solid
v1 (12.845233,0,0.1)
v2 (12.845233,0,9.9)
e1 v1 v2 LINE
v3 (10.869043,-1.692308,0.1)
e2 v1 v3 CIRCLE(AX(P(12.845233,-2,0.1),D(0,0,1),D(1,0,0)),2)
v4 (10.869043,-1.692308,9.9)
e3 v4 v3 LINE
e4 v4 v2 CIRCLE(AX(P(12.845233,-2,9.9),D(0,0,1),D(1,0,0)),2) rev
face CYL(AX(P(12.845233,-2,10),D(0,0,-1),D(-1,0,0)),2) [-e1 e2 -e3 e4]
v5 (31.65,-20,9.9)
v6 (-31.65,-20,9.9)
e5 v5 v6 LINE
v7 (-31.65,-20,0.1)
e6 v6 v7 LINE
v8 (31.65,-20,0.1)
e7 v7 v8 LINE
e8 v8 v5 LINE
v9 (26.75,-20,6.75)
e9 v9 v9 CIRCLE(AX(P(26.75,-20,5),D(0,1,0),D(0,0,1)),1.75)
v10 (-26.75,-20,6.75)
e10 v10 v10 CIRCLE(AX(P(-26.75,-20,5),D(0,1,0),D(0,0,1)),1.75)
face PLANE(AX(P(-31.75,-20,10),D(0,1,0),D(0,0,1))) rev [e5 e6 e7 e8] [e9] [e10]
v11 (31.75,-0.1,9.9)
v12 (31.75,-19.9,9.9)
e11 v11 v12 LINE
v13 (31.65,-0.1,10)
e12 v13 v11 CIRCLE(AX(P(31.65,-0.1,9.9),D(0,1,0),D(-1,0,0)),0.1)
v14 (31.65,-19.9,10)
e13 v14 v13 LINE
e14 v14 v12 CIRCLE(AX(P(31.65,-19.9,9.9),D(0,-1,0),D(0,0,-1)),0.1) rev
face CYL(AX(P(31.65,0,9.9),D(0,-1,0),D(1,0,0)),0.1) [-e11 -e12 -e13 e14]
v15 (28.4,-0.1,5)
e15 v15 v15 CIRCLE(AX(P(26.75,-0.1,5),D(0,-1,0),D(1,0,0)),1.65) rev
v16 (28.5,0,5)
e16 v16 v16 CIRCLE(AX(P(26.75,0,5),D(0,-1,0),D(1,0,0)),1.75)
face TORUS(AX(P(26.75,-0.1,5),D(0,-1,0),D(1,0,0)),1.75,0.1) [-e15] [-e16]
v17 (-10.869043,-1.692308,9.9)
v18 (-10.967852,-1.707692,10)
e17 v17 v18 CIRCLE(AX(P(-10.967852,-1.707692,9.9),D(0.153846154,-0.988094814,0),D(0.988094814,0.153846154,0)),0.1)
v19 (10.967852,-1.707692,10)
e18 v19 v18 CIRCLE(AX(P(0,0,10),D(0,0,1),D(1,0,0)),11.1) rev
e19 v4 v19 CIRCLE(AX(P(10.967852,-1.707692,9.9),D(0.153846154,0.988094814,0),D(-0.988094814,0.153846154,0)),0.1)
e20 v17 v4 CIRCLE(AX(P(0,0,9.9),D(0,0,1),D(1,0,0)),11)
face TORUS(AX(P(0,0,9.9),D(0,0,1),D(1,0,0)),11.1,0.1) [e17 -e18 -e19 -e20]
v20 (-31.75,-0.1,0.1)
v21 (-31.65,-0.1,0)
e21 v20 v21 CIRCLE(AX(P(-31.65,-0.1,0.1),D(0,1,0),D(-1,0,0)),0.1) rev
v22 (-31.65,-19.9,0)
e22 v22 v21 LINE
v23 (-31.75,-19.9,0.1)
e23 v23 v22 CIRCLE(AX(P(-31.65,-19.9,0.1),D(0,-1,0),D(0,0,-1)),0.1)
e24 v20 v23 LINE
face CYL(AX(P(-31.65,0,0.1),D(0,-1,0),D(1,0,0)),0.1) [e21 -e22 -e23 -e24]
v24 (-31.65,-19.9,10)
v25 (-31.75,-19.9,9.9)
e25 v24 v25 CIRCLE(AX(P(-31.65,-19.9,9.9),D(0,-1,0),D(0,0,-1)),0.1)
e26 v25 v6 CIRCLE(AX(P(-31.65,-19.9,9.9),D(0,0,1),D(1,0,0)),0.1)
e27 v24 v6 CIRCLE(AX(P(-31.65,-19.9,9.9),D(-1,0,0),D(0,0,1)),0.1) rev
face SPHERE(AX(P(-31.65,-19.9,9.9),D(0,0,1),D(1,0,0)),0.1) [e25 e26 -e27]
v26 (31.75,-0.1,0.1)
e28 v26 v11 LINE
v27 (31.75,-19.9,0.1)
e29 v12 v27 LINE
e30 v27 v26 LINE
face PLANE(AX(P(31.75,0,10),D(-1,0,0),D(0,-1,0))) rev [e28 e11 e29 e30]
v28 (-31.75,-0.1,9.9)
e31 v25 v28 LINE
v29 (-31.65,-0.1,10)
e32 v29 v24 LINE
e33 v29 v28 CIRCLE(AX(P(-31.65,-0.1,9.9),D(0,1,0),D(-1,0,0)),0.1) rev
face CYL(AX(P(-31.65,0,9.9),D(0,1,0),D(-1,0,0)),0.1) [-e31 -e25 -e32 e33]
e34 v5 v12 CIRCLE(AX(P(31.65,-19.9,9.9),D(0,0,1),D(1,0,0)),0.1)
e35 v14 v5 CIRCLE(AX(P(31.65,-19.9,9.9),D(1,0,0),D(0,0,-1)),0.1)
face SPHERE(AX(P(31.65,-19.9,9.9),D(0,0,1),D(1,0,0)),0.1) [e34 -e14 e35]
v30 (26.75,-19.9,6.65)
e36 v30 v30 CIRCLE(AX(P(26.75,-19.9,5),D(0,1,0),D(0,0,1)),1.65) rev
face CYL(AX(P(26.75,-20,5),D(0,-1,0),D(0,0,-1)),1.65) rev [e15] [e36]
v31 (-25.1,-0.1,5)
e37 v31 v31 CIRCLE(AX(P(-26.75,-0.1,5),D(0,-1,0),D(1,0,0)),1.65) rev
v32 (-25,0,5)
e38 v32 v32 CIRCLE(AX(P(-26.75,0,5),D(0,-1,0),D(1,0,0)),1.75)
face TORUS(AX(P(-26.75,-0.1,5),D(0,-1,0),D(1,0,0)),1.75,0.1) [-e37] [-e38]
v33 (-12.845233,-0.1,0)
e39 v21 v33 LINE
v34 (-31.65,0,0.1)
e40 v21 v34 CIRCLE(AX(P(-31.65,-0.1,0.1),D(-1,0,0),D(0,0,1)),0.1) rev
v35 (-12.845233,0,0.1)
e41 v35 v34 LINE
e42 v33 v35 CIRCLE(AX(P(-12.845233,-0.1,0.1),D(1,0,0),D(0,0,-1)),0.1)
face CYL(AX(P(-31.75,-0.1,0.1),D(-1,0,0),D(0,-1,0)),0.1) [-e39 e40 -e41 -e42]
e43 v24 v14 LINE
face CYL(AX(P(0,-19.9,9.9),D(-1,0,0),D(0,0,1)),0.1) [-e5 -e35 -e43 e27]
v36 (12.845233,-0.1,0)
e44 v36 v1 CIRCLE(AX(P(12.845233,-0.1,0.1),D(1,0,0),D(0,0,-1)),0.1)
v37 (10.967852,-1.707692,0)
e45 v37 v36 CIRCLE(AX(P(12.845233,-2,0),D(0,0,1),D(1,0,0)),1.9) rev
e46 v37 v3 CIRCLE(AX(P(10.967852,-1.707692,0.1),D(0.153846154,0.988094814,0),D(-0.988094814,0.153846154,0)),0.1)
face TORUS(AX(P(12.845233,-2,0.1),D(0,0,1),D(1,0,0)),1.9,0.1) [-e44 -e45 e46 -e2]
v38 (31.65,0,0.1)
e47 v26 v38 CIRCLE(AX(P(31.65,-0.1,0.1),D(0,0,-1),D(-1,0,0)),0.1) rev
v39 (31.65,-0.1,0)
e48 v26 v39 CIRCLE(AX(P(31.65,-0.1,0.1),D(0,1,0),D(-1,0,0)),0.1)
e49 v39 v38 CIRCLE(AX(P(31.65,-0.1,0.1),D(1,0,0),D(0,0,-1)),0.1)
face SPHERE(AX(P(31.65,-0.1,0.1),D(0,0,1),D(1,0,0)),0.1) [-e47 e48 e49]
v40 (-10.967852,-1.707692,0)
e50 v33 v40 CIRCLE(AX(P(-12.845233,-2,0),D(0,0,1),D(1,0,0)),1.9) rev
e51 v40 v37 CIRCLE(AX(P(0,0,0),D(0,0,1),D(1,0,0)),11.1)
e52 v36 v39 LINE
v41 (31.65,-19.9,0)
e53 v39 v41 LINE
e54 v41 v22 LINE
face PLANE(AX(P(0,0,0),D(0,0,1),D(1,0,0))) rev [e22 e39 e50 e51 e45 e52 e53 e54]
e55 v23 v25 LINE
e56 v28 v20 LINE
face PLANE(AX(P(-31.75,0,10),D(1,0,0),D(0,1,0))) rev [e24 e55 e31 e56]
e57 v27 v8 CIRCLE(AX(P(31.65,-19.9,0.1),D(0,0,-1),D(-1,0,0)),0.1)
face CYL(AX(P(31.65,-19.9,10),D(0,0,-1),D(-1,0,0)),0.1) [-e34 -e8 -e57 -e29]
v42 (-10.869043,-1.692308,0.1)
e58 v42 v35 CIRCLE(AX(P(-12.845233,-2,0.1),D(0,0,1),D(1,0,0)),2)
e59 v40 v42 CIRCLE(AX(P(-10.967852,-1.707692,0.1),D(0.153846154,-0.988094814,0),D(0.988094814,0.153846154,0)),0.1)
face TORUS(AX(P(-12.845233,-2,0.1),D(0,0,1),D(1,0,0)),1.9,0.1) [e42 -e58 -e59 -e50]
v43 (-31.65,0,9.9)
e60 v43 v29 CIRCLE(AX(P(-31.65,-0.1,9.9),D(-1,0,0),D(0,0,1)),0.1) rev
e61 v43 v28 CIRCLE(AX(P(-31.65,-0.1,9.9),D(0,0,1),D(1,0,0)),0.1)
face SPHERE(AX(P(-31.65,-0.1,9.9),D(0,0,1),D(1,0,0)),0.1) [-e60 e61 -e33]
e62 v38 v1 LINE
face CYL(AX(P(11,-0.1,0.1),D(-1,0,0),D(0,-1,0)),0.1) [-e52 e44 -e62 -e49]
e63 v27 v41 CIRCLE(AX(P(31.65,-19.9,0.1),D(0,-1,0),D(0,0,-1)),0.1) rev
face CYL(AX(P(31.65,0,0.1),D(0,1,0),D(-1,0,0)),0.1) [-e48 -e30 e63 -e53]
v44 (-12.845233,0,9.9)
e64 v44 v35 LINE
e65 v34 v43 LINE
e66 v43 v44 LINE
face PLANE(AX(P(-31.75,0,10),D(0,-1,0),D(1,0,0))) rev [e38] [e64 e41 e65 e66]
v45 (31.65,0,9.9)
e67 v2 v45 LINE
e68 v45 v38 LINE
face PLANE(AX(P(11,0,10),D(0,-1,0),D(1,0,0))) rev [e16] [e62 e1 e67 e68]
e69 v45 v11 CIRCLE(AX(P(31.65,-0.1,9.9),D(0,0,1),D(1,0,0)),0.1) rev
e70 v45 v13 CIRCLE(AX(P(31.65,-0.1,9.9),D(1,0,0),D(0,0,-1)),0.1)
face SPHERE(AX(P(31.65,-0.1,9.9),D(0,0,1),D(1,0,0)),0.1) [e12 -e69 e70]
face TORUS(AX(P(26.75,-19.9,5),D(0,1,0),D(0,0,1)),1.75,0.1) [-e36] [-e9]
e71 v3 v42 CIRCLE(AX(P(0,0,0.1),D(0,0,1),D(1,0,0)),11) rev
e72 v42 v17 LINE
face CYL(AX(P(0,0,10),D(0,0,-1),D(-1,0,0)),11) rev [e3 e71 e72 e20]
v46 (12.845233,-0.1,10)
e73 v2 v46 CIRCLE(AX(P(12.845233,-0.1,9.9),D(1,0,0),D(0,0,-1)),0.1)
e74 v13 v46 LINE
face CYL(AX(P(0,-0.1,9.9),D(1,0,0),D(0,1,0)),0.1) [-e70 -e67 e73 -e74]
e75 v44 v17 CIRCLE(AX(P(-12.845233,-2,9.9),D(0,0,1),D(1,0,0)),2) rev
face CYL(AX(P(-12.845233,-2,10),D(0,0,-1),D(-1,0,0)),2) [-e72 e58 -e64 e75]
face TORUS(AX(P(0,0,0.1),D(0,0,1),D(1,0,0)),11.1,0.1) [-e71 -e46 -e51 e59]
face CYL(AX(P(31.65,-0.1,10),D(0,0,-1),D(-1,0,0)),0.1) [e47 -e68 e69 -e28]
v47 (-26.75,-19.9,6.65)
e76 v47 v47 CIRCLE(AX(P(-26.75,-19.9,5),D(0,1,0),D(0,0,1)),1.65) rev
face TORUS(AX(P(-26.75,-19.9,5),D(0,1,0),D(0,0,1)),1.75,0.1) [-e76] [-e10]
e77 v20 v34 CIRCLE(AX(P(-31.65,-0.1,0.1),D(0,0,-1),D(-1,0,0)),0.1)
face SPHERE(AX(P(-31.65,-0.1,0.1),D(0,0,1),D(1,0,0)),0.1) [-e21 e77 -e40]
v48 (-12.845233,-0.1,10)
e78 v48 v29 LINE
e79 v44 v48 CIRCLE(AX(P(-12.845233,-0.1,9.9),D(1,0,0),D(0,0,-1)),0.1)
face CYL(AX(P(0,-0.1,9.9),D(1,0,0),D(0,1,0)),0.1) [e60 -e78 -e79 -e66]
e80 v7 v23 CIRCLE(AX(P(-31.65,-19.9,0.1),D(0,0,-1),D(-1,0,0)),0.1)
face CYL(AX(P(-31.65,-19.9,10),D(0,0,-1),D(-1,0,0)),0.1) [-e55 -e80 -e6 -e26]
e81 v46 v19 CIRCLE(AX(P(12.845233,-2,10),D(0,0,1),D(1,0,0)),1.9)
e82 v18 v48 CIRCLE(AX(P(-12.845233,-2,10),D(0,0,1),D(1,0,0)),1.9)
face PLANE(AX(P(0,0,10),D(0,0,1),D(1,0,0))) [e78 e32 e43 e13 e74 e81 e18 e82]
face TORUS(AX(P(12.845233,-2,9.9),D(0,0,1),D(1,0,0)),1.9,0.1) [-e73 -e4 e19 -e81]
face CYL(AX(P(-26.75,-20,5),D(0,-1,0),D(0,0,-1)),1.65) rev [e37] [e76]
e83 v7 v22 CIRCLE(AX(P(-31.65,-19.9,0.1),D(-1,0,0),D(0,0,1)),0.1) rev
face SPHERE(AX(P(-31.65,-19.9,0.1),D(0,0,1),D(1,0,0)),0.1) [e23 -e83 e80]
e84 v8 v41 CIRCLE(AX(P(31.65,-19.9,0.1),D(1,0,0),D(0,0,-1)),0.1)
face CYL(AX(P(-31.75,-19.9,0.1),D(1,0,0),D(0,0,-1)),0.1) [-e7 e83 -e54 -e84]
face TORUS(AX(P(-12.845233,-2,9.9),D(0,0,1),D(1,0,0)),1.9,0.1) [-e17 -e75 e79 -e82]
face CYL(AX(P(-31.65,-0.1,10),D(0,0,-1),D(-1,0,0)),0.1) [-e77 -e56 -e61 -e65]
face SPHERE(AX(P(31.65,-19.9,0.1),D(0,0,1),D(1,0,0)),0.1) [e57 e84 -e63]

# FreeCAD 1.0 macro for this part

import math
import FreeCAD as App
import Part
import Sketcher

V = App.Vector


def edges_at(feature, points):
    """Names of the edges that pass closest to the given points."""
    edges = feature.Shape.Edges
    near = lambda p: min(range(len(edges)), key=lambda i: edges[i].distToShape(Part.Vertex(*p))[0])
    return sorted({f"Edge{near(p) + 1}" for p in points})

doc = App.newDocument("Part")
body = doc.addObject("PartDesign::Body", "Body")

sketch1 = body.newObject("Sketcher::SketchObject", "Sketch")
sketch1.AttachmentSupport = (doc.getObject("XY_Plane"), [""])
sketch1.MapMode = "FlatFace"
sketch1.addGeometry([
    Part.LineSegment(V(32, 0, 0), V(11, 0, 0)),
    Part.ArcOfCircle(Part.Circle(V(0, 0, 0), V(0, 0, 1), 11), math.radians(180), math.radians(360)),
    Part.LineSegment(V(-11, 0, 0), V(-32, 0, 0)),
    Part.LineSegment(V(-32, 0, 0), V(-32, -20, 0)),
    Part.LineSegment(V(-32, -20, 0), V(32, -20, 0)),
    Part.LineSegment(V(32, -20, 0), V(32, 0, 0)),
], False)
sketch1.addConstraint([
    Sketcher.Constraint("Coincident", 0, 2, 1, 2),
    Sketcher.Constraint("Coincident", 1, 1, 2, 1),
    Sketcher.Constraint("Coincident", 2, 2, 3, 1),
    Sketcher.Constraint("Coincident", 3, 2, 4, 1),
    Sketcher.Constraint("Coincident", 4, 2, 5, 1),
    Sketcher.Constraint("Coincident", 5, 2, 0, 1),
    Sketcher.Constraint("Horizontal", 0),
    Sketcher.Constraint("Horizontal", 2),
    Sketcher.Constraint("Vertical", 3),
    Sketcher.Constraint("Horizontal", 4),
    Sketcher.Constraint("Vertical", 5),
    Sketcher.Constraint("Coincident", 1, 3, -1, 1),
    Sketcher.Constraint("Symmetric", 2, 2, 5, 2, -1, 1),
    Sketcher.Constraint("PointOnObject", 0, 2, -1),
    Sketcher.Constraint("Radius", 1, 11.0),
    Sketcher.Constraint("DistanceY", 3, 2, 3, 1, 20.0),
    Sketcher.Constraint("DistanceX", 4, 1, 4, 2, 63.5),
])
pad1 = body.newObject("PartDesign::Pad", "Pad")
pad1.Profile = sketch1
pad1.Length = 10

sketch2 = body.newObject("Sketcher::SketchObject", "Sketch001")
sketch2.AttachmentSupport = (doc.getObject("XZ_Plane"), [""])
sketch2.MapMode = "FlatFace"
sketch2.AttachmentOffset = App.Placement(V(0, 0, 20), App.Rotation())
sketch2.addGeometry([
    Part.Circle(V(-26.8, 5, 0), V(0, 0, 1), 1.6),
    Part.Circle(V(26.8, 5, 0), V(0, 0, 1), 1.6),
], False)
sketch2.addConstraint([
    Sketcher.Constraint("Equal", 0, 1),
    Sketcher.Constraint("Symmetric", 0, 3, 1, 3, -2),
    Sketcher.Constraint("Diameter", 0, 3.3),
    Sketcher.Constraint("DistanceY", -1, 1, 0, 3, 5.0),
    Sketcher.Constraint("DistanceX", 0, 3, 1, 3, 53.5),
])
doc.recompute()
hole = body.newObject("PartDesign::Hole", "Hole")
hole.Profile = sketch2
hole.ThreadType = "None"
hole.Diameter = 3.3
hole.DepthType = "ThroughAll"
doc.recompute()

fillet = body.newObject("PartDesign::Fillet", "Fillet")
fillet.Base = (hole, edges_at(hole, [(11, 0, 5), (-11, 0, 5)]))
fillet.Radius = 2
doc.recompute()

fillet2 = body.newObject("PartDesign::Fillet", "Fillet001")
fillet2.Base = (fillet, ["Edge1"])
fillet2.UseAllEdges = True
fillet2.Radius = 0.1

doc.recompute()
